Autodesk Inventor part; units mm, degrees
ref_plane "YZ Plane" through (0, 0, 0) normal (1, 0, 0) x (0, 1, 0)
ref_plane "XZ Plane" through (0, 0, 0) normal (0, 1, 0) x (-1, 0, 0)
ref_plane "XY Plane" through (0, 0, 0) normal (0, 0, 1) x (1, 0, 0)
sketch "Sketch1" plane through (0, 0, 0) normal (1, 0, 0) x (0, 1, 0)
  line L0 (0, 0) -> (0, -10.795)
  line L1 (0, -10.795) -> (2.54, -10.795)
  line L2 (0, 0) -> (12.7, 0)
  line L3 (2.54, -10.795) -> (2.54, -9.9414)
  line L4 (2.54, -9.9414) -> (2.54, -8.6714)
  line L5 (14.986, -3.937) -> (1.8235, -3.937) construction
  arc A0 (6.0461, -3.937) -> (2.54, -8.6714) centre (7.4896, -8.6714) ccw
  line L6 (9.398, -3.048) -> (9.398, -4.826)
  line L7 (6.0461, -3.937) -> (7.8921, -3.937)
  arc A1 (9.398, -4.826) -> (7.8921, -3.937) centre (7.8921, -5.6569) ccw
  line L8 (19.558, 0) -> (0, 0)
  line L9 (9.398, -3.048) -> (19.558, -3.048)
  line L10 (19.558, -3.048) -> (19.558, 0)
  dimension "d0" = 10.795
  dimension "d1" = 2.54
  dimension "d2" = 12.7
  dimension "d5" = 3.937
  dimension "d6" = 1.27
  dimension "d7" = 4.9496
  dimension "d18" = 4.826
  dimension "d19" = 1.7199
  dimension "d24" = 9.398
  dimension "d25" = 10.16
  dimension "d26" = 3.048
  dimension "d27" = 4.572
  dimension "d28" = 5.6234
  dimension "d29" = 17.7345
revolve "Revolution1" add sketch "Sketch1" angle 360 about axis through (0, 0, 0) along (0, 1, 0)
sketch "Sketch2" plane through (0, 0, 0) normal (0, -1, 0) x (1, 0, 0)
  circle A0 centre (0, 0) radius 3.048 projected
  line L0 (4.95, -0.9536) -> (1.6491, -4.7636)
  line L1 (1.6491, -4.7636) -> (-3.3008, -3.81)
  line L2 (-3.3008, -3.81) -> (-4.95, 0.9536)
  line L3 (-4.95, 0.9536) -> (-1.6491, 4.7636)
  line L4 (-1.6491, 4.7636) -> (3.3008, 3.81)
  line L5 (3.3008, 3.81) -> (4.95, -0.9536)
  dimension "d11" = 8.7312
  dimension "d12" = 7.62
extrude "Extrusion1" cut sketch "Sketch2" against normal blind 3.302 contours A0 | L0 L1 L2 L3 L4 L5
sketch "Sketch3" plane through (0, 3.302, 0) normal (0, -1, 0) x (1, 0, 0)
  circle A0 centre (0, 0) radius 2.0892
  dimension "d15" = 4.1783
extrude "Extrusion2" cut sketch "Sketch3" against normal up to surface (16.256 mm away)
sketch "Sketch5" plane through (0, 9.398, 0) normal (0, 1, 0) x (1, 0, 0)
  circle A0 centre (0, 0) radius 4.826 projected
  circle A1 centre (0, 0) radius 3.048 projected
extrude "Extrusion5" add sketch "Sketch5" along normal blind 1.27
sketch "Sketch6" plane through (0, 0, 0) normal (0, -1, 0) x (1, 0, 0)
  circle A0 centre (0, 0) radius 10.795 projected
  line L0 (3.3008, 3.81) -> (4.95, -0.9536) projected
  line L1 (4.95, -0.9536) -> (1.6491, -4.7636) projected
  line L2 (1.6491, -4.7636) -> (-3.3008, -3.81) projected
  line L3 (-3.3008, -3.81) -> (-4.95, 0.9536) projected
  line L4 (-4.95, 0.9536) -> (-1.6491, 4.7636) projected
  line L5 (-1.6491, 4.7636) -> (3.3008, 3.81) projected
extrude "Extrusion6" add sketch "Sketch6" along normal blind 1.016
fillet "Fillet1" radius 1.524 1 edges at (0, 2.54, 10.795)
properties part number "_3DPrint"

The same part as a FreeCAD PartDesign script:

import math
import FreeCAD as App
import Part
import Sketcher
from FreeCAD import Vector
Q = App.Units.Quantity


def edges_at(feature, points):
    """Names of the edges that pass closest to the given points."""
    edges = feature.Shape.Edges
    near = lambda p: min(range(len(edges)), key=lambda i: edges[i].distToShape(Part.Vertex(*p))[0])
    return sorted({f"Edge{near(p) + 1}" for p in points})


def add_polygon(sketch, points):
    """Adds a closed chain of lines whose ends are joined by coincident constraints."""
    first, n = sketch.GeometryCount, len(points)
    for a, b in zip(points, points[1:] + points[:1]):
        sketch.addGeometry(Part.LineSegment(App.Vector(*a, 0), App.Vector(*b, 0)), False)
    for i in range(n):
        sketch.addConstraint(Sketcher.Constraint("Coincident", first + i, 2, first + (i + 1) % n, 1))

doc = App.newDocument("Part")
body = doc.addObject("PartDesign::Body", "Body")

sketch1 = body.newObject("Sketcher::SketchObject", "Sketch")
sketch1.AttachmentSupport = (doc.getObject("YZ_Plane"), [""])
sketch1.MapMode = "FlatFace"
sketch1.addGeometry(Part.LineSegment(Vector(19.6, 0, 0), Vector(0, 0, 0)), False)
sketch1.addGeometry(Part.LineSegment(Vector(0, 0, 0), Vector(0, -10.8, 0)), False)
sketch1.addGeometry(Part.LineSegment(Vector(0, -10.8, 0), Vector(2.5, -10.8, 0)), False)
sketch1.addGeometry(Part.LineSegment(Vector(2.5, -10.8, 0), Vector(2.5, -8.7, 0)), False)
sketch1.addGeometry(Part.ArcOfCircle(Part.Circle(Vector(7.5, -8.7, 0), Vector(0, 0, 1), 4.9), math.radians(107), math.radians(180)), False)
sketch1.addGeometry(Part.LineSegment(Vector(6, -3.9, 0), Vector(7.9, -3.9, 0)), False)
sketch1.addGeometry(Part.ArcOfCircle(Part.Circle(Vector(7.9, -5.7, 0), Vector(0, 0, 1), 1.7), math.radians(29), math.radians(90)), False)
sketch1.addGeometry(Part.LineSegment(Vector(9.4, -4.8, 0), Vector(9.4, -3, 0)), False)
sketch1.addGeometry(Part.LineSegment(Vector(9.4, -3, 0), Vector(19.6, -3, 0)), False)
sketch1.addGeometry(Part.LineSegment(Vector(19.6, -3, 0), Vector(19.6, 0, 0)), False)
sketch1.addConstraint(Sketcher.Constraint("Coincident", 0, 2, 1, 1))
sketch1.addConstraint(Sketcher.Constraint("Coincident", 1, 2, 2, 1))
sketch1.addConstraint(Sketcher.Constraint("Coincident", 2, 2, 3, 1))
sketch1.addConstraint(Sketcher.Constraint("Tangent", 3, 2, 4, 2))
sketch1.addConstraint(Sketcher.Constraint("Coincident", 4, 1, 5, 1))
sketch1.addConstraint(Sketcher.Constraint("Tangent", 5, 2, 6, 2))
sketch1.addConstraint(Sketcher.Constraint("Coincident", 6, 1, 7, 1))
sketch1.addConstraint(Sketcher.Constraint("Coincident", 7, 2, 8, 1))
sketch1.addConstraint(Sketcher.Constraint("Coincident", 8, 2, 9, 1))
sketch1.addConstraint(Sketcher.Constraint("Coincident", 9, 2, 0, 1))
sketch1.addConstraint(Sketcher.Constraint("Horizontal", 0))
sketch1.addConstraint(Sketcher.Constraint("Vertical", 1))
sketch1.addConstraint(Sketcher.Constraint("Horizontal", 2))
sketch1.addConstraint(Sketcher.Constraint("Vertical", 3))
sketch1.addConstraint(Sketcher.Constraint("Horizontal", 5))
sketch1.addConstraint(Sketcher.Constraint("Vertical", 7))
sketch1.addConstraint(Sketcher.Constraint("Horizontal", 8))
sketch1.addConstraint(Sketcher.Constraint("Vertical", 9))
sketch1.addConstraint(Sketcher.Constraint("Coincident", 0, 2, -1, 1))
sketch1.addConstraint(Sketcher.Constraint("DistanceX", 2, 1, 2, 2, Q("0.1 in")))
sketch1.addConstraint(Sketcher.Constraint("DistanceX", 8, 1, 8, 2, Q("0.4 in")))
sketch1.addConstraint(Sketcher.Constraint("DistanceY", 9, 1, 9, 2, Q("0.12 in")))
sketch1.addConstraint(Sketcher.Constraint("DistanceY", 1, 2, 1, 1, Q("0.425 in")))
sketch1.addConstraint(Sketcher.Constraint("DistanceX", -1, 1, 6, 1, Q("0.37 in")))
sketch1.addConstraint(Sketcher.Constraint("DistanceY", 6, 1, -1, 1, Q("0.19 in")))
sketch1.addConstraint(Sketcher.Constraint("Radius", 4, Q("4.9496 mm")))
sketch1.addConstraint(Sketcher.Constraint("Radius", 6, Q("1.72 mm")))
sketch1.addConstraint(Sketcher.Constraint("DistanceY", 4, 1, -1, 1, Q("0.155 in")))
sketch1.addConstraint(Sketcher.Constraint("DistanceY", 4, 3, 7, 2, Q("0.2214 in")))
revolution = body.newObject("PartDesign::Revolution", "Revolution")
revolution.Profile = sketch1
revolution.ReferenceAxis = (sketch1, ["H_Axis"])
revolution.Angle = 360

sketch2 = body.newObject("Sketcher::SketchObject", "Sketch001")
sketch2.AttachmentSupport = (doc.getObject("XZ_Plane"), [""])
sketch2.MapMode = "FlatFace"
add_polygon(sketch2, [(2, -5), (5, -1), (3, 4), (-2, 5), (-5, 1), (-3, -4)])
sketch2.addConstraint(Sketcher.Constraint("Symmetric", 0, 2, 3, 2, -1, 1))
sketch2.addConstraint(Sketcher.Constraint("Symmetric", 1, 2, 4, 2, -1, 1))
sketch2.addConstraint(Sketcher.Constraint("Symmetric", 2, 2, 5, 2, -1, 1))
sketch2.addConstraint(Sketcher.Constraint("Equal", 0, 1))
sketch2.addConstraint(Sketcher.Constraint("Equal", 1, 2))
sketch2.addConstraint(Sketcher.Constraint("DistanceY", 4, 2, 1, 2, Q("0.3 in")))
sketch2.addConstraint(Sketcher.Constraint("DistanceY", 3, 2, 2, 2, Q("0.15 in")))
sketch2.addConstraint(Sketcher.Constraint("DistanceX", 2, 2, 0, 2, Q("0.2598 in")))
sketch2.addConstraint(Sketcher.Constraint("DistanceX", 4, 2, 1, 2, Q("0.2599 in")))
pocket1 = body.newObject("PartDesign::Pocket", "Pocket")
pocket1.Profile = sketch2
pocket1.Length = Q("0.13 in")

sketch3 = body.newObject("Sketcher::SketchObject", "Sketch002")
sketch3.AttachmentSupport = (doc.getObject("XZ_Plane"), [""])
sketch3.MapMode = "FlatFace"
sketch3.AttachmentOffset = App.Placement(Vector(0, 0, -0.13 * 25.4), App.Rotation())
sketch3.addGeometry(Part.Circle(Vector(0, 0, 0), Vector(0, 0, 1), 2.1), False)
sketch3.addConstraint(Sketcher.Constraint("Coincident", 0, 3, -1, 1))
sketch3.addConstraint(Sketcher.Constraint("Diameter", 0, Q("0.1645 in")))
pocket2 = body.newObject("PartDesign::Pocket", "Pocket001")
pocket2.Profile = sketch3
pocket2.Length = Q("0.64 in")

sketch4 = body.newObject("Sketcher::SketchObject", "Sketch003")
sketch4.AttachmentSupport = (doc.getObject("XZ_Plane"), [""])
sketch4.MapMode = "FlatFace"
sketch4.AttachmentOffset = App.Placement(Vector(0, 0, -0.37 * 25.4), App.Rotation())
sketch4.addGeometry(Part.Circle(Vector(0, 0, 0), Vector(0, 0, 1), 4.8), False)
sketch4.addGeometry(Part.Circle(Vector(0, 0, 0), Vector(0, 0, 1), 3), False)
sketch4.addConstraint(Sketcher.Constraint("Coincident", 0, 3, -1, 1))
sketch4.addConstraint(Sketcher.Constraint("Coincident", 1, 3, -1, 1))
sketch4.addConstraint(Sketcher.Constraint("Diameter", 0, Q("0.38 in")))
sketch4.addConstraint(Sketcher.Constraint("Diameter", 1, Q("0.24 in")))
pad1 = body.newObject("PartDesign::Pad", "Pad")
pad1.Profile = sketch4
pad1.Length = Q("0.05 in")
pad1.Reversed = True

sketch5 = body.newObject("Sketcher::SketchObject", "Sketch004")
sketch5.AttachmentSupport = (doc.getObject("XZ_Plane"), [""])
sketch5.MapMode = "FlatFace"
sketch5.addGeometry(Part.Circle(Vector(0, 0, 0), Vector(0, 0, 1), 11), False)
add_polygon(sketch5, [(-2, 5), (3, 4), (5, -1), (2, -5), (-3, -4), (-5, 1)])
sketch5.addConstraint(Sketcher.Constraint("Coincident", 0, 3, -1, 1))
sketch5.addConstraint(Sketcher.Constraint("Symmetric", 1, 2, 4, 2, -1, 1))
sketch5.addConstraint(Sketcher.Constraint("Symmetric", 2, 2, 5, 2, -1, 1))
sketch5.addConstraint(Sketcher.Constraint("Symmetric", 3, 2, 6, 2, -1, 1))
sketch5.addConstraint(Sketcher.Constraint("Equal", 1, 2))
sketch5.addConstraint(Sketcher.Constraint("Equal", 2, 3))
sketch5.addConstraint(Sketcher.Constraint("Diameter", 0, Q("0.85 in")))
sketch5.addConstraint(Sketcher.Constraint("DistanceY", 4, 2, 1, 2, Q("0.3 in")))
sketch5.addConstraint(Sketcher.Constraint("DistanceY", 3, 2, 2, 2, Q("0.15 in")))
sketch5.addConstraint(Sketcher.Constraint("DistanceX", 4, 2, 1, 2, Q("0.2599 in")))
sketch5.addConstraint(Sketcher.Constraint("DistanceX", 5, 2, 3, 2, Q("0.2598 in")))
pad2 = body.newObject("PartDesign::Pad", "Pad001")
pad2.Profile = sketch5
pad2.Length = Q("0.04 in")
doc.recompute()

fillet = body.newObject("PartDesign::Fillet", "Fillet")
fillet.Base = (pad2, edges_at(pad2, [(0, 2.54, 10.795)]))
fillet.Radius = Q("0.06 in")

doc.recompute()
